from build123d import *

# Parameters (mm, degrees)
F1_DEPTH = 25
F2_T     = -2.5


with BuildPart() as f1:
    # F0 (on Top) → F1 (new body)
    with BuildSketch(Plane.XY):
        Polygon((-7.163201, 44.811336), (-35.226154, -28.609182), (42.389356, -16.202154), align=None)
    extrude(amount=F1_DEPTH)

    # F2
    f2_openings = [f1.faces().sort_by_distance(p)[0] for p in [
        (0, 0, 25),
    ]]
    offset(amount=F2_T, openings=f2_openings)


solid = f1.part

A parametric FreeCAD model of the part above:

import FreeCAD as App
import Part
import Sketcher

V = App.Vector
Q = App.Units.Quantity


def faces_at(feature, points):
    """Names of the faces that lie closest to the given points."""
    faces = feature.Shape.Faces
    near = lambda p: min(range(len(faces)), key=lambda i: faces[i].distToShape(Part.Vertex(*p))[0])
    return sorted({f"Face{near(p) + 1}" for p in points})

doc = App.newDocument("Part")
body = doc.addObject("PartDesign::Body", "Body")

# Sketch on XY plane
sketch1 = doc.addObject("Sketcher::SketchObject", "Sketch")
body.addObject(sketch1)
sketch1.AttachmentSupport = (doc.XY_Plane, [""])
sketch1.MapMode = "FlatFace"
sketch1.addGeometry(Part.LineSegment(V(-7, 45, 0), V(-35, -29, 0)), False)
sketch1.addGeometry(Part.LineSegment(V(-35, -29, 0), V(42, -16, 0)), False)
sketch1.addGeometry(Part.LineSegment(V(42, -16, 0), V(-7, 45, 0)), False)
sketch1.addConstraint(Sketcher.Constraint("Coincident", 0, 2, 1, 1))
sketch1.addConstraint(Sketcher.Constraint("Coincident", 1, 2, 2, 1))
sketch1.addConstraint(Sketcher.Constraint("Coincident", 2, 2, 0, 1))
sketch1.addConstraint(Sketcher.Constraint("Equal", 0, 1))
sketch1.addConstraint(Sketcher.Constraint("Equal", 1, 2))
sketch1.addConstraint(Sketcher.Constraint("Distance", 0, Q("78.600902 mm")))
sketch1.addConstraint(Sketcher.Constraint("DistanceX", 2, 2, -1, 1, Q("7.163201 mm")))
sketch1.addConstraint(Sketcher.Constraint("DistanceX", 0, 2, 1, 2, Q("77.61551 mm")))
sketch1.addConstraint(Sketcher.Constraint("DistanceY", 0, 2, -1, 1, Q("28.609182 mm")))
pad1 = doc.addObject("PartDesign::Pad", "Pad")
body.addObject(pad1)
pad1.Profile = sketch1
pad1.Length = 25
doc.recompute()

thickness = doc.addObject("PartDesign::Thickness", "Thickness")
body.addObject(thickness)
thickness.Base = (pad1, faces_at(pad1, [(3.582, 8.101, 25)]))
thickness.Value = 2.5
thickness.Reversed = True
thickness.Join = "Arc"

doc.recompute()
